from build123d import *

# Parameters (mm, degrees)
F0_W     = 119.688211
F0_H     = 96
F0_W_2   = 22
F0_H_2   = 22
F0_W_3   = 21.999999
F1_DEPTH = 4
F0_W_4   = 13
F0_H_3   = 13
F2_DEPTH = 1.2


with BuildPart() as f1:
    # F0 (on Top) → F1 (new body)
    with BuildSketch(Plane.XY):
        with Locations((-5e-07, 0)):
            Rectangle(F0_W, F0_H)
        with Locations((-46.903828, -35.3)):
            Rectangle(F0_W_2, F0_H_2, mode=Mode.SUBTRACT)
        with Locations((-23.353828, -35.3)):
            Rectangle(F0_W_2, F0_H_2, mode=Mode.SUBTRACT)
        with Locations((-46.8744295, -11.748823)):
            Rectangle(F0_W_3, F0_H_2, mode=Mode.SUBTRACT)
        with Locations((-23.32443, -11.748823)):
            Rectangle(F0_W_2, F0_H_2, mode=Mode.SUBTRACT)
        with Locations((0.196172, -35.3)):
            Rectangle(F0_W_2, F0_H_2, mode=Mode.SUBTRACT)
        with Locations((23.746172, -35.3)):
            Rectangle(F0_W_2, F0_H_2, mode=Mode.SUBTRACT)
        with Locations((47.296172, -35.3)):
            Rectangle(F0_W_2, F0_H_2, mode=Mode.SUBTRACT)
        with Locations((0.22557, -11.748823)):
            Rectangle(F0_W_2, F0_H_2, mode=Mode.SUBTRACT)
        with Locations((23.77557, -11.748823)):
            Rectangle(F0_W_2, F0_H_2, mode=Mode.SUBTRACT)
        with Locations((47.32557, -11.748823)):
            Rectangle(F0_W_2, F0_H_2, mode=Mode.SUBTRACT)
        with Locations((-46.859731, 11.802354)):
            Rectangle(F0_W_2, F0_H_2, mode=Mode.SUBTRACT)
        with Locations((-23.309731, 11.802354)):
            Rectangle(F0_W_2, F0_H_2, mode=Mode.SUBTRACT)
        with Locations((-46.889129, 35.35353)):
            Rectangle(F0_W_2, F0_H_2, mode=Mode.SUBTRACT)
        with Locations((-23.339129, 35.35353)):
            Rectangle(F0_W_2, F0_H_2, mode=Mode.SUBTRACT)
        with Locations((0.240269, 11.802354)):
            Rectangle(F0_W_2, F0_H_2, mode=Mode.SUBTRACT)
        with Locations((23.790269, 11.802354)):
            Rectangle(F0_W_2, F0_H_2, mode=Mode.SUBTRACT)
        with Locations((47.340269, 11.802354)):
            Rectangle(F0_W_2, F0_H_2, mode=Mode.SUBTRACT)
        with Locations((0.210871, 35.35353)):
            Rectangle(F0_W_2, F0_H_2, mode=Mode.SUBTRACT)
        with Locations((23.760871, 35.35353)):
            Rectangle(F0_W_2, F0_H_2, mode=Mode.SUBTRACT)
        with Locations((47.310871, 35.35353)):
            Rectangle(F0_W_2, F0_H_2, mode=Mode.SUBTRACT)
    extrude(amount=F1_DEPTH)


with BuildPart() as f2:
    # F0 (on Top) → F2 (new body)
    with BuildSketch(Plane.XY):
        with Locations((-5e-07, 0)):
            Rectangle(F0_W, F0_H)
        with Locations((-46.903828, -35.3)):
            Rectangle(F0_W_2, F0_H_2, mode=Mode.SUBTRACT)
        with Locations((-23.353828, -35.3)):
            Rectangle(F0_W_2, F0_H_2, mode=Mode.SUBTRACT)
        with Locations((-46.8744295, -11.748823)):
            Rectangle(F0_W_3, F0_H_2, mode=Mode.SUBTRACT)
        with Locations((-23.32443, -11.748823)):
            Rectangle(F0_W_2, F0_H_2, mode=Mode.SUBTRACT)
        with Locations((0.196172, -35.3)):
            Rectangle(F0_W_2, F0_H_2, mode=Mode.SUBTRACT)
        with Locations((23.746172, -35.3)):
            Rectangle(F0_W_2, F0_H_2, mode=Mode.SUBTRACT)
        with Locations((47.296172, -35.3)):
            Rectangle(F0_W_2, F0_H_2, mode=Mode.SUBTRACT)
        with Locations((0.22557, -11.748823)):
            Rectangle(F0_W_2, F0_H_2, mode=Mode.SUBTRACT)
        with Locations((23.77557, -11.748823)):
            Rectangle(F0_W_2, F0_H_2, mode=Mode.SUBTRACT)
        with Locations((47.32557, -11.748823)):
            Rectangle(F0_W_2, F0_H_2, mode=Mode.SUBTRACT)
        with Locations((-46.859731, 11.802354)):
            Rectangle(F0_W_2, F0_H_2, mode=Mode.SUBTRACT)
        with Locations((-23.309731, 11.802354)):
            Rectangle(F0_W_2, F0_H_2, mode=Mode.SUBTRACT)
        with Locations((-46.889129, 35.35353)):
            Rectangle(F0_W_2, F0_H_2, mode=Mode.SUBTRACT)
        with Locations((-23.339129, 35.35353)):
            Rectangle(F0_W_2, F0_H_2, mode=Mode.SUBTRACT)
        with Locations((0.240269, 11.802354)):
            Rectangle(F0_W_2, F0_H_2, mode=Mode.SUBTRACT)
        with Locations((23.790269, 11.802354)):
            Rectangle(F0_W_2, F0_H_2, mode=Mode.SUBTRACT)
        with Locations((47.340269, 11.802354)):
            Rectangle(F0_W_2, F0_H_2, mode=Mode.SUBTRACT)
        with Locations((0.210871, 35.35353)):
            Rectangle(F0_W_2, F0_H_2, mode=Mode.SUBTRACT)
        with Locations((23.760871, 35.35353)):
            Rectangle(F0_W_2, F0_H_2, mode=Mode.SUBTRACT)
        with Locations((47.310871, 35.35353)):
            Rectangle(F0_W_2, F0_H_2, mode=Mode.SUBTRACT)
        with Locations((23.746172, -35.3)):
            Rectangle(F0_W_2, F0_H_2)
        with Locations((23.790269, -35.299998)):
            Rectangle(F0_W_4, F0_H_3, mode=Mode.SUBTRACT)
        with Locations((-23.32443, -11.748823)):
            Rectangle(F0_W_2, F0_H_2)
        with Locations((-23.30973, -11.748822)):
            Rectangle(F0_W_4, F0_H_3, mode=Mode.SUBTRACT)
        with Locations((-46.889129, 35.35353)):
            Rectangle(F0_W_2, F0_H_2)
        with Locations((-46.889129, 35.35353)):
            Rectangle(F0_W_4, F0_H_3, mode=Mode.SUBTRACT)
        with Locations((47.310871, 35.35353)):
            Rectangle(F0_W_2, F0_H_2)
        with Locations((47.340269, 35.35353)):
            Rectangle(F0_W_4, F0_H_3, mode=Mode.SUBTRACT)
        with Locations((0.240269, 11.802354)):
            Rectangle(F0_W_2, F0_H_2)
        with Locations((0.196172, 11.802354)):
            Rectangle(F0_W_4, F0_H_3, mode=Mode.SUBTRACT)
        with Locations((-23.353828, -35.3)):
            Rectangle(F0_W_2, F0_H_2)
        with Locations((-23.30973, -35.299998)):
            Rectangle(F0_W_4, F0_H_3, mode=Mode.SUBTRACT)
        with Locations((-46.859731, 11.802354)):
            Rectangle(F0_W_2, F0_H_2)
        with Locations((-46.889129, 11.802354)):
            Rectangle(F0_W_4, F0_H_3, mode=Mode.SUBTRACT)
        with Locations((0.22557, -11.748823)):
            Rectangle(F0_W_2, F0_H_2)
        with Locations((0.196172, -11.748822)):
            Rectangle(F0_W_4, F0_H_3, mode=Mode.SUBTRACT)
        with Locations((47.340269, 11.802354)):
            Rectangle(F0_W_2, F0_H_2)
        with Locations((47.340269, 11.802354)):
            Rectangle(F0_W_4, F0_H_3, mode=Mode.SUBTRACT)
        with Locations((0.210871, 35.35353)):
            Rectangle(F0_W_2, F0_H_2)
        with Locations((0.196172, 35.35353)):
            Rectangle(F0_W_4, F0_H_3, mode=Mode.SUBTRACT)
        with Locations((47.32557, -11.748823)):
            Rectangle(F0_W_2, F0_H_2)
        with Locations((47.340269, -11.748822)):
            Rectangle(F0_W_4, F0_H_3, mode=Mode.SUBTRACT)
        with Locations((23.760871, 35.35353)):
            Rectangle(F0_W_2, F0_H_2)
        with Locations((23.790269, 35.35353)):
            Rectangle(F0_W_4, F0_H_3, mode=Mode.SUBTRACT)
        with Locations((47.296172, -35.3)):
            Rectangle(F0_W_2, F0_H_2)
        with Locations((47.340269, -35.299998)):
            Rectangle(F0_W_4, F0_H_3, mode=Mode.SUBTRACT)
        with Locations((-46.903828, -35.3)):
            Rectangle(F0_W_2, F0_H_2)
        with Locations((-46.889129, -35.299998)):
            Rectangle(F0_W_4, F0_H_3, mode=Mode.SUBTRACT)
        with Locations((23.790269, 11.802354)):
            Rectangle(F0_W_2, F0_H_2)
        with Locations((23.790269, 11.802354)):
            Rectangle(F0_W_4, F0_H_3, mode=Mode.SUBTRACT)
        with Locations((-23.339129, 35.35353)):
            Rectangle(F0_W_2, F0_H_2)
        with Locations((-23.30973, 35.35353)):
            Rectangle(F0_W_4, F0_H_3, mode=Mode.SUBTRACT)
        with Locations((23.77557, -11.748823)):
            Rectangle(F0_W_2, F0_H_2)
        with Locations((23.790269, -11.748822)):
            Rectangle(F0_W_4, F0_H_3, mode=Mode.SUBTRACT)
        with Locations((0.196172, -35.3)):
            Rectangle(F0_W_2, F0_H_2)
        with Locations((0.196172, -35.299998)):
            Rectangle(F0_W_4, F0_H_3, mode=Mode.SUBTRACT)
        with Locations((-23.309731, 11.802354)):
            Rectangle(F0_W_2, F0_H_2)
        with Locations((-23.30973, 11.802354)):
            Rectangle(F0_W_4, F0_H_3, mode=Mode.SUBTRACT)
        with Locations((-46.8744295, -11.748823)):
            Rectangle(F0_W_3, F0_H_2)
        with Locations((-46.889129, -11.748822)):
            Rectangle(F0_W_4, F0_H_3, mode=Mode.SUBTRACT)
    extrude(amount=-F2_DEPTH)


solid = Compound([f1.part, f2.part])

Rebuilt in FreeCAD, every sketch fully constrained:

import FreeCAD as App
import Part
import Sketcher

V = App.Vector
Q = App.Units.Quantity


def add_polygon(sketch, points):
    """Adds a closed chain of lines whose ends are joined by coincident constraints."""
    first, n = sketch.GeometryCount, len(points)
    for a, b in zip(points, points[1:] + points[:1]):
        sketch.addGeometry(Part.LineSegment(App.Vector(*a, 0), App.Vector(*b, 0)), False)
    for i in range(n):
        sketch.addConstraint(Sketcher.Constraint("Coincident", first + i, 2, first + (i + 1) % n, 1))

doc = App.newDocument("Part")
body = doc.addObject("PartDesign::Body", "Body")

# Sketch on XY plane
sketch1 = body.newObject("Sketcher::SketchObject", "Sketch")
sketch1.AttachmentSupport = (doc.getObject("XY_Plane"), [""])
sketch1.MapMode = "FlatFace"
add_polygon(sketch1, [(-59.844105, 48), (-59.844105, -48), (59.844105, -48), (59.844105, 48)])  # lines 0-3
add_polygon(sketch1, [(-35.903828, -46.3), (-57.903828, -46.3), (-57.903828, -24.3), (-35.903828, -24.3)])  # lines 4-7
add_polygon(sketch1, [(-12.353828, -46.3), (-34.353828, -46.3), (-34.353828, -24.3), (-12.353828, -24.3)])  # lines 8-11
add_polygon(sketch1, [(11.196172, -46.3), (-10.803828, -46.3), (-10.803828, -24.3), (11.196172, -24.3)])  # lines 12-15
add_polygon(sketch1, [(-35.87443, -22.748823), (-57.874429, -22.748823), (-57.874429, -0.748823), (-35.87443, -0.748823)])  # lines 16-19
add_polygon(sketch1, [(-12.32443, -22.748823), (-34.32443, -22.748823), (-34.32443, -0.748823), (-12.32443, -0.748823)])  # lines 20-23
add_polygon(sketch1, [(34.746172, -46.3), (12.746172, -46.3), (12.746172, -24.3), (34.746172, -24.3)])  # lines 24-27
add_polygon(sketch1, [(58.296172, -46.3), (36.296172, -46.3), (36.296172, -24.3), (58.296172, -24.3)])  # lines 28-31
add_polygon(sketch1, [(11.22557, -22.748823), (-10.77443, -22.748823), (-10.77443, -0.748823), (11.22557, -0.748823)])  # lines 32-35
add_polygon(sketch1, [(34.77557, -22.748823), (12.77557, -22.748823), (12.77557, -0.748823), (34.77557, -0.748823)])  # lines 36-39
add_polygon(sketch1, [(58.32557, -22.748823), (36.32557, -22.748823), (36.32557, -0.748823), (58.32557, -0.748823)])  # lines 40-43
add_polygon(sketch1, [(-35.859731, 0.802354), (-57.859731, 0.802354), (-57.859731, 22.802354), (-35.859731, 22.802354)])  # lines 44-47
add_polygon(sketch1, [(-12.309731, 0.802354), (-34.309731, 0.802354), (-34.309731, 22.802354), (-12.309731, 22.802354)])  # lines 48-51
add_polygon(sketch1, [(-35.889129, 24.35353), (-57.889129, 24.35353), (-57.889129, 46.35353), (-35.889129, 46.35353)])  # lines 52-55
add_polygon(sketch1, [(-12.339129, 24.35353), (-34.339129, 24.35353), (-34.339129, 46.35353), (-12.339129, 46.35353)])  # lines 56-59
add_polygon(sketch1, [(11.210871, 24.35353), (-10.789129, 24.35353), (-10.789129, 46.35353), (11.210871, 46.35353)])  # lines 60-63
add_polygon(sketch1, [(11.240269, 0.802354), (-10.759731, 0.802354), (-10.759731, 22.802354), (11.240269, 22.802354)])  # lines 64-67
add_polygon(sketch1, [(34.790269, 0.802354), (12.790269, 0.802354), (12.790269, 22.802354), (34.790269, 22.802354)])  # lines 68-71
add_polygon(sketch1, [(58.340269, 0.802354), (36.340269, 0.802354), (36.340269, 22.802354), (58.340269, 22.802354)])  # lines 72-75
add_polygon(sketch1, [(34.760871, 24.35353), (12.760871, 24.35353), (12.760871, 46.35353), (34.760871, 46.35353)])  # lines 76-79
add_polygon(sketch1, [(58.310871, 24.35353), (36.310871, 24.35353), (36.310871, 46.35353), (58.310871, 46.35353)])  # lines 80-83
sketch1.addConstraint([
    Sketcher.Constraint("Vertical", 0),
    Sketcher.Constraint("Horizontal", 1),
    Sketcher.Constraint("Vertical", 2),
    Sketcher.Constraint("Horizontal", 3),
    Sketcher.Constraint("Horizontal", 4),
    Sketcher.Constraint("Vertical", 5),
    Sketcher.Constraint("Horizontal", 6),
    Sketcher.Constraint("Vertical", 7),
    Sketcher.Constraint("Horizontal", 8),
    Sketcher.Constraint("Vertical", 9),
    Sketcher.Constraint("Horizontal", 10),
    Sketcher.Constraint("Vertical", 11),
    Sketcher.Constraint("Horizontal", 12),
    Sketcher.Constraint("Vertical", 13),
    Sketcher.Constraint("Horizontal", 14),
    Sketcher.Constraint("Vertical", 15),
    Sketcher.Constraint("Horizontal", 16),
    Sketcher.Constraint("Vertical", 17),
    Sketcher.Constraint("Horizontal", 18),
    Sketcher.Constraint("Vertical", 19),
    Sketcher.Constraint("Horizontal", 20),
    Sketcher.Constraint("Vertical", 21),
    Sketcher.Constraint("Horizontal", 22),
    Sketcher.Constraint("Vertical", 23),
    Sketcher.Constraint("Horizontal", 24),
    Sketcher.Constraint("Vertical", 25),
    Sketcher.Constraint("Horizontal", 26),
    Sketcher.Constraint("Vertical", 27),
    Sketcher.Constraint("Horizontal", 28),
    Sketcher.Constraint("Vertical", 29),
    Sketcher.Constraint("Horizontal", 30),
    Sketcher.Constraint("Vertical", 31),
    Sketcher.Constraint("Horizontal", 32),
    Sketcher.Constraint("Vertical", 33),
    Sketcher.Constraint("Horizontal", 34),
    Sketcher.Constraint("Vertical", 35),
    Sketcher.Constraint("Horizontal", 36),
    Sketcher.Constraint("Vertical", 37),
    Sketcher.Constraint("Horizontal", 38),
    Sketcher.Constraint("Vertical", 39),
    Sketcher.Constraint("Horizontal", 40),
    Sketcher.Constraint("Vertical", 41),
    Sketcher.Constraint("Horizontal", 42),
    Sketcher.Constraint("Vertical", 43),
    Sketcher.Constraint("Horizontal", 44),
    Sketcher.Constraint("Vertical", 45),
    Sketcher.Constraint("Horizontal", 46),
    Sketcher.Constraint("Vertical", 47),
    Sketcher.Constraint("Horizontal", 48),
    Sketcher.Constraint("Vertical", 49),
    Sketcher.Constraint("Horizontal", 50),
    Sketcher.Constraint("Vertical", 51),
    Sketcher.Constraint("Horizontal", 52),
    Sketcher.Constraint("Vertical", 53),
    Sketcher.Constraint("Horizontal", 54),
    Sketcher.Constraint("Vertical", 55),
    Sketcher.Constraint("Horizontal", 56),
    Sketcher.Constraint("Vertical", 57),
    Sketcher.Constraint("Horizontal", 58),
    Sketcher.Constraint("Vertical", 59),
    Sketcher.Constraint("Horizontal", 60),
    Sketcher.Constraint("Vertical", 61),
    Sketcher.Constraint("Horizontal", 62),
    Sketcher.Constraint("Vertical", 63),
    Sketcher.Constraint("Horizontal", 64),
    Sketcher.Constraint("Vertical", 65),
    Sketcher.Constraint("Horizontal", 66),
    Sketcher.Constraint("Vertical", 67),
    Sketcher.Constraint("Horizontal", 68),
    Sketcher.Constraint("Vertical", 69),
    Sketcher.Constraint("Horizontal", 70),
    Sketcher.Constraint("Vertical", 71),
    Sketcher.Constraint("Horizontal", 72),
    Sketcher.Constraint("Vertical", 73),
    Sketcher.Constraint("Horizontal", 74),
    Sketcher.Constraint("Vertical", 75),
    Sketcher.Constraint("Horizontal", 76),
    Sketcher.Constraint("Vertical", 77),
    Sketcher.Constraint("Horizontal", 78),
    Sketcher.Constraint("Vertical", 79),
    Sketcher.Constraint("Horizontal", 80),
    Sketcher.Constraint("Vertical", 81),
    Sketcher.Constraint("Horizontal", 82),
    Sketcher.Constraint("Vertical", 83),
    Sketcher.Constraint("Symmetric", 0, 2, 2, 2, -1, 1),
    Sketcher.Constraint("Horizontal", 7, 2, 8, 2),
    Sketcher.Constraint("Horizontal", 6, 2, 9, 2),
    Sketcher.Constraint("Horizontal", 11, 2, 12, 2),
    Sketcher.Constraint("Horizontal", 10, 2, 13, 2),
    Sketcher.Constraint("Horizontal", 19, 2, 20, 2),
    Sketcher.Constraint("Horizontal", 18, 2, 21, 2),
    Sketcher.Constraint("Horizontal", 15, 2, 24, 2),
    Sketcher.Constraint("Horizontal", 14, 2, 25, 2),
    Sketcher.Constraint("Horizontal", 27, 2, 28, 2),
    Sketcher.Constraint("Horizontal", 26, 2, 29, 2),
    Sketcher.Constraint("Horizontal", 23, 2, 32, 2),
    Sketcher.Constraint("Horizontal", 22, 2, 33, 2),
    Sketcher.Constraint("Horizontal", 35, 2, 36, 2),
    Sketcher.Constraint("Horizontal", 34, 2, 37, 2),
    Sketcher.Constraint("Horizontal", 39, 2, 40, 2),
    Sketcher.Constraint("Horizontal", 38, 2, 41, 2),
    Sketcher.Constraint("Horizontal", 47, 2, 48, 2),
    Sketcher.Constraint("Horizontal", 46, 2, 49, 2),
    Sketcher.Constraint("Horizontal", 55, 2, 56, 2),
    Sketcher.Constraint("Horizontal", 54, 2, 57, 2),
    Sketcher.Constraint("Horizontal", 59, 2, 60, 2),
    Sketcher.Constraint("Horizontal", 58, 2, 61, 2),
    Sketcher.Constraint("Horizontal", 51, 2, 64, 2),
    Sketcher.Constraint("Horizontal", 50, 2, 65, 2),
    Sketcher.Constraint("Horizontal", 67, 2, 68, 2),
    Sketcher.Constraint("Horizontal", 66, 2, 69, 2),
    Sketcher.Constraint("Horizontal", 71, 2, 72, 2),
    Sketcher.Constraint("Horizontal", 70, 2, 73, 2),
    Sketcher.Constraint("Horizontal", 63, 2, 76, 2),
    Sketcher.Constraint("Horizontal", 62, 2, 77, 2),
    Sketcher.Constraint("Horizontal", 79, 2, 80, 2),
    Sketcher.Constraint("Horizontal", 78, 2, 81, 2),
    Sketcher.Constraint("Equal", 6, 8),
    Sketcher.Constraint("Equal", 10, 12),
    Sketcher.Constraint("Equal", 14, 16),
    Sketcher.Constraint("Equal", 18, 20),
    Sketcher.Constraint("Equal", 22, 24),
    Sketcher.Constraint("Equal", 26, 28),
    Sketcher.Constraint("Equal", 30, 32),
    Sketcher.Constraint("Equal", 34, 36),
    Sketcher.Constraint("Equal", 38, 40),
    Sketcher.Constraint("Equal", 42, 44),
    Sketcher.Constraint("Equal", 46, 48),
    Sketcher.Constraint("Equal", 50, 52),
    Sketcher.Constraint("Equal", 54, 56),
    Sketcher.Constraint("Equal", 58, 60),
    Sketcher.Constraint("Equal", 62, 64),
    Sketcher.Constraint("Equal", 66, 68),
    Sketcher.Constraint("Equal", 70, 72),
    Sketcher.Constraint("Equal", 74, 76),
    Sketcher.Constraint("Equal", 78, 80),
    Sketcher.Constraint("Equal", 82, 5),
    Sketcher.Constraint("Equal", 15, 17),
    Sketcher.Constraint("Equal", 43, 45),
    Sketcher.Constraint("Equal", 51, 53),
    Sketcher.Constraint("DistanceX", 4, 2, 4, 1, Q("22 mm")),
    Sketcher.Constraint("DistanceY", 0, 2, 0, 1, Q("96 mm")),
    Sketcher.Constraint("DistanceY", 4, 2, -1, 1, Q("46.3 mm")),
    Sketcher.Constraint("DistanceX", 1, 1, 1, 2, Q("119.688211 mm")),
    Sketcher.Constraint("DistanceX", 16, 2, -1, 1, Q("57.874429 mm")),
    Sketcher.Constraint("DistanceX", 20, 2, -1, 1, Q("34.32443 mm")),
    Sketcher.Constraint("DistanceX", 32, 2, -1, 1, Q("10.77443 mm")),
    Sketcher.Constraint("DistanceX", -1, 1, 36, 2, Q("12.77557 mm")),
    Sketcher.Constraint("DistanceX", -1, 1, 40, 2, Q("36.32557 mm")),
    Sketcher.Constraint("DistanceX", 44, 2, -1, 1, Q("57.859731 mm")),
    Sketcher.Constraint("DistanceX", 48, 2, -1, 1, Q("34.309731 mm")),
    Sketcher.Constraint("DistanceX", 52, 2, -1, 1, Q("57.889129 mm")),
    Sketcher.Constraint("DistanceY", -1, 1, 52, 2, Q("24.35353 mm")),
    Sketcher.Constraint("DistanceX", 56, 2, -1, 1, Q("34.339129 mm")),
    Sketcher.Constraint("DistanceX", 60, 2, -1, 1, Q("10.789129 mm")),
    Sketcher.Constraint("DistanceX", 64, 2, -1, 1, Q("10.759731 mm")),
    Sketcher.Constraint("DistanceX", -1, 1, 68, 2, Q("12.790269 mm")),
    Sketcher.Constraint("DistanceX", -1, 1, 72, 2, Q("36.340269 mm")),
    Sketcher.Constraint("DistanceX", -1, 1, 76, 2, Q("12.760871 mm")),
    Sketcher.Constraint("DistanceX", -1, 1, 80, 2, Q("36.310871 mm")),
    Sketcher.Constraint("DistanceX", 4, 2, -1, 1, Q("57.903828 mm")),
    Sketcher.Constraint("DistanceX", 8, 2, -1, 1, Q("34.353828 mm")),
    Sketcher.Constraint("DistanceX", 12, 2, -1, 1, Q("10.803828 mm")),
    Sketcher.Constraint("DistanceY", 16, 2, -1, 1, Q("22.748823 mm")),
    Sketcher.Constraint("DistanceX", -1, 1, 24, 2, Q("12.746172 mm")),
    Sketcher.Constraint("DistanceX", -1, 1, 28, 2, Q("36.296172 mm")),
    Sketcher.Constraint("DistanceY", -1, 1, 44, 2, Q("0.802354 mm")),
])
pad1 = body.newObject("PartDesign::Pad", "Pad")
pad1.Profile = sketch1
pad1.Length = 4
body2 = doc.addObject("PartDesign::Body", "Body001")

# Sketch on XY plane
sketch2 = body2.newObject("Sketcher::SketchObject", "Sketch001")
sketch2.AttachmentSupport = (doc.getObject("XY_Plane001"), [""])
sketch2.MapMode = "FlatFace"
add_polygon(sketch2, [(-59.844105, 48), (-59.844105, -48), (59.844105, -48), (59.844105, 48)])  # lines 0-3
add_polygon(sketch2, [(-40.389129, -41.799998), (-53.389129, -41.799998), (-53.389129, -28.799998), (-40.389129, -28.799998)])  # lines 4-7
add_polygon(sketch2, [(-16.80973, -41.799998), (-29.80973, -41.799998), (-29.80973, -28.799998), (-16.80973, -28.799998)])  # lines 8-11
add_polygon(sketch2, [(6.696172, -41.799998), (-6.303828, -41.799998), (-6.303828, -28.799998), (6.696172, -28.799998)])  # lines 12-15
add_polygon(sketch2, [(-40.389129, -18.248822), (-53.389129, -18.248822), (-53.389129, -5.248822), (-40.389129, -5.248822)])  # lines 16-19
add_polygon(sketch2, [(-16.80973, -18.248822), (-29.80973, -18.248822), (-29.80973, -5.248822), (-16.80973, -5.248822)])  # lines 20-23
add_polygon(sketch2, [(6.696172, -18.248822), (-6.303828, -18.248822), (-6.303828, -5.248822), (6.696172, -5.248822)])  # lines 24-27
add_polygon(sketch2, [(30.290269, -41.799998), (17.290269, -41.799998), (17.290269, -28.799998), (30.290269, -28.799998)])  # lines 28-31
add_polygon(sketch2, [(53.840269, -41.799998), (40.840269, -41.799998), (40.840269, -28.799998), (53.840269, -28.799998)])  # lines 32-35
add_polygon(sketch2, [(30.290269, -18.248822), (17.290269, -18.248822), (17.290269, -5.248822), (30.290269, -5.248822)])  # lines 36-39
add_polygon(sketch2, [(53.840269, -18.248822), (40.840269, -18.248822), (40.840269, -5.248822), (53.840269, -5.248822)])  # lines 40-43
add_polygon(sketch2, [(-40.389129, 5.302354), (-53.389129, 5.302354), (-53.389129, 18.302354), (-40.389129, 18.302354)])  # lines 44-47
add_polygon(sketch2, [(-16.80973, 5.302354), (-29.80973, 5.302354), (-29.80973, 18.302354), (-16.80973, 18.302354)])  # lines 48-51
add_polygon(sketch2, [(6.696172, 5.302354), (-6.303828, 5.302354), (-6.303828, 18.302354), (6.696172, 18.302354)])  # lines 52-55
add_polygon(sketch2, [(-40.389129, 28.85353), (-53.389129, 28.85353), (-53.389129, 41.85353), (-40.389129, 41.85353)])  # lines 56-59
add_polygon(sketch2, [(-16.80973, 28.85353), (-29.80973, 28.85353), (-29.80973, 41.85353), (-16.80973, 41.85353)])  # lines 60-63
add_polygon(sketch2, [(6.696172, 28.85353), (-6.303828, 28.85353), (-6.303828, 41.85353), (6.696172, 41.85353)])  # lines 64-67
add_polygon(sketch2, [(30.290269, 5.302354), (17.290269, 5.302354), (17.290269, 18.302354), (30.290269, 18.302354)])  # lines 68-71
add_polygon(sketch2, [(53.840269, 5.302354), (40.840269, 5.302354), (40.840269, 18.302354), (53.840269, 18.302354)])  # lines 72-75
add_polygon(sketch2, [(30.290269, 28.85353), (17.290269, 28.85353), (17.290269, 41.85353), (30.290269, 41.85353)])  # lines 76-79
add_polygon(sketch2, [(53.840269, 28.85353), (40.840269, 28.85353), (40.840269, 41.85353), (53.840269, 41.85353)])  # lines 80-83
sketch2.addConstraint([
    Sketcher.Constraint("Vertical", 0),
    Sketcher.Constraint("Horizontal", 1),
    Sketcher.Constraint("Vertical", 2),
    Sketcher.Constraint("Horizontal", 3),
    Sketcher.Constraint("Horizontal", 4),
    Sketcher.Constraint("Vertical", 5),
    Sketcher.Constraint("Horizontal", 6),
    Sketcher.Constraint("Vertical", 7),
    Sketcher.Constraint("Horizontal", 8),
    Sketcher.Constraint("Vertical", 9),
    Sketcher.Constraint("Horizontal", 10),
    Sketcher.Constraint("Vertical", 11),
    Sketcher.Constraint("Horizontal", 12),
    Sketcher.Constraint("Vertical", 13),
    Sketcher.Constraint("Horizontal", 14),
    Sketcher.Constraint("Vertical", 15),
    Sketcher.Constraint("Horizontal", 16),
    Sketcher.Constraint("Vertical", 17),
    Sketcher.Constraint("Horizontal", 18),
    Sketcher.Constraint("Vertical", 19),
    Sketcher.Constraint("Horizontal", 20),
    Sketcher.Constraint("Vertical", 21),
    Sketcher.Constraint("Horizontal", 22),
    Sketcher.Constraint("Vertical", 23),
    Sketcher.Constraint("Horizontal", 24),
    Sketcher.Constraint("Vertical", 25),
    Sketcher.Constraint("Horizontal", 26),
    Sketcher.Constraint("Vertical", 27),
    Sketcher.Constraint("Horizontal", 28),
    Sketcher.Constraint("Vertical", 29),
    Sketcher.Constraint("Horizontal", 30),
    Sketcher.Constraint("Vertical", 31),
    Sketcher.Constraint("Horizontal", 32),
    Sketcher.Constraint("Vertical", 33),
    Sketcher.Constraint("Horizontal", 34),
    Sketcher.Constraint("Vertical", 35),
    Sketcher.Constraint("Horizontal", 36),
    Sketcher.Constraint("Vertical", 37),
    Sketcher.Constraint("Horizontal", 38),
    Sketcher.Constraint("Vertical", 39),
    Sketcher.Constraint("Horizontal", 40),
    Sketcher.Constraint("Vertical", 41),
    Sketcher.Constraint("Horizontal", 42),
    Sketcher.Constraint("Vertical", 43),
    Sketcher.Constraint("Horizontal", 44),
    Sketcher.Constraint("Vertical", 45),
    Sketcher.Constraint("Horizontal", 46),
    Sketcher.Constraint("Vertical", 47),
    Sketcher.Constraint("Horizontal", 48),
    Sketcher.Constraint("Vertical", 49),
    Sketcher.Constraint("Horizontal", 50),
    Sketcher.Constraint("Vertical", 51),
    Sketcher.Constraint("Horizontal", 52),
    Sketcher.Constraint("Vertical", 53),
    Sketcher.Constraint("Horizontal", 54),
    Sketcher.Constraint("Vertical", 55),
    Sketcher.Constraint("Horizontal", 56),
    Sketcher.Constraint("Vertical", 57),
    Sketcher.Constraint("Horizontal", 58),
    Sketcher.Constraint("Vertical", 59),
    Sketcher.Constraint("Horizontal", 60),
    Sketcher.Constraint("Vertical", 61),
    Sketcher.Constraint("Horizontal", 62),
    Sketcher.Constraint("Vertical", 63),
    Sketcher.Constraint("Horizontal", 64),
    Sketcher.Constraint("Vertical", 65),
    Sketcher.Constraint("Horizontal", 66),
    Sketcher.Constraint("Vertical", 67),
    Sketcher.Constraint("Horizontal", 68),
    Sketcher.Constraint("Vertical", 69),
    Sketcher.Constraint("Horizontal", 70),
    Sketcher.Constraint("Vertical", 71),
    Sketcher.Constraint("Horizontal", 72),
    Sketcher.Constraint("Vertical", 73),
    Sketcher.Constraint("Horizontal", 74),
    Sketcher.Constraint("Vertical", 75),
    Sketcher.Constraint("Horizontal", 76),
    Sketcher.Constraint("Vertical", 77),
    Sketcher.Constraint("Horizontal", 78),
    Sketcher.Constraint("Vertical", 79),
    Sketcher.Constraint("Horizontal", 80),
    Sketcher.Constraint("Vertical", 81),
    Sketcher.Constraint("Horizontal", 82),
    Sketcher.Constraint("Vertical", 83),
    Sketcher.Constraint("Symmetric", 0, 2, 2, 2, -1, 1),
    Sketcher.Constraint("Horizontal", 7, 2, 8, 2),
    Sketcher.Constraint("Horizontal", 6, 2, 9, 2),
    Sketcher.Constraint("Horizontal", 11, 2, 12, 2),
    Sketcher.Constraint("Horizontal", 10, 2, 13, 2),
    Sketcher.Constraint("Horizontal", 19, 2, 20, 2),
    Sketcher.Constraint("Horizontal", 18, 2, 21, 2),
    Sketcher.Constraint("Horizontal", 23, 2, 24, 2),
    Sketcher.Constraint("Horizontal", 22, 2, 25, 2),
    Sketcher.Constraint("Horizontal", 15, 2, 28, 2),
    Sketcher.Constraint("Horizontal", 14, 2, 29, 2),
    Sketcher.Constraint("Horizontal", 31, 2, 32, 2),
    Sketcher.Constraint("Horizontal", 30, 2, 33, 2),
    Sketcher.Constraint("Horizontal", 27, 2, 36, 2),
    Sketcher.Constraint("Horizontal", 26, 2, 37, 2),
    Sketcher.Constraint("Horizontal", 39, 2, 40, 2),
    Sketcher.Constraint("Horizontal", 38, 2, 41, 2),
    Sketcher.Constraint("Horizontal", 47, 2, 48, 2),
    Sketcher.Constraint("Horizontal", 46, 2, 49, 2),
    Sketcher.Constraint("Horizontal", 51, 2, 52, 2),
    Sketcher.Constraint("Horizontal", 50, 2, 53, 2),
    Sketcher.Constraint("Horizontal", 59, 2, 60, 2),
    Sketcher.Constraint("Horizontal", 58, 2, 61, 2),
    Sketcher.Constraint("Horizontal", 63, 2, 64, 2),
    Sketcher.Constraint("Horizontal", 62, 2, 65, 2),
    Sketcher.Constraint("Horizontal", 55, 2, 68, 2),
    Sketcher.Constraint("Horizontal", 54, 2, 69, 2),
    Sketcher.Constraint("Horizontal", 71, 2, 72, 2),
    Sketcher.Constraint("Horizontal", 70, 2, 73, 2),
    Sketcher.Constraint("Horizontal", 67, 2, 76, 2),
    Sketcher.Constraint("Horizontal", 66, 2, 77, 2),
    Sketcher.Constraint("Horizontal", 79, 2, 80, 2),
    Sketcher.Constraint("Horizontal", 78, 2, 81, 2),
    Sketcher.Constraint("Vertical", 5, 2, 16, 2),
    Sketcher.Constraint("Vertical", 7, 2, 18, 2),
    Sketcher.Constraint("Vertical", 9, 2, 20, 2),
    Sketcher.Constraint("Vertical", 11, 2, 22, 2),
    Sketcher.Constraint("Vertical", 13, 2, 24, 2),
    Sketcher.Constraint("Vertical", 15, 2, 26, 2),
    Sketcher.Constraint("Vertical", 29, 2, 36, 2),
    Sketcher.Constraint("Vertical", 31, 2, 38, 2),
    Sketcher.Constraint("Vertical", 33, 2, 40, 2),
    Sketcher.Constraint("Vertical", 35, 2, 42, 2),
    Sketcher.Constraint("Vertical", 17, 2, 44, 2),
    Sketcher.Constraint("Vertical", 19, 2, 46, 2),
    Sketcher.Constraint("Vertical", 21, 2, 48, 2),
    Sketcher.Constraint("Vertical", 23, 2, 50, 2),
    Sketcher.Constraint("Vertical", 25, 2, 52, 2),
    Sketcher.Constraint("Vertical", 27, 2, 54, 2),
    Sketcher.Constraint("Vertical", 45, 2, 56, 2),
    Sketcher.Constraint("Vertical", 47, 2, 58, 2),
    Sketcher.Constraint("Vertical", 49, 2, 60, 2),
    Sketcher.Constraint("Vertical", 51, 2, 62, 2),
    Sketcher.Constraint("Vertical", 53, 2, 64, 2),
    Sketcher.Constraint("Vertical", 55, 2, 66, 2),
    Sketcher.Constraint("Vertical", 37, 2, 68, 2),
    Sketcher.Constraint("Vertical", 39, 2, 70, 2),
    Sketcher.Constraint("Vertical", 41, 2, 72, 2),
    Sketcher.Constraint("Vertical", 43, 2, 74, 2),
    Sketcher.Constraint("Vertical", 69, 2, 76, 2),
    Sketcher.Constraint("Vertical", 71, 2, 78, 2),
    Sketcher.Constraint("Vertical", 73, 2, 80, 2),
    Sketcher.Constraint("Vertical", 75, 2, 82, 2),
    Sketcher.Constraint("Equal", 6, 8),
    Sketcher.Constraint("Equal", 10, 12),
    Sketcher.Constraint("Equal", 26, 28),
    Sketcher.Constraint("Equal", 30, 32),
    Sketcher.Constraint("Equal", 82, 5),
    Sketcher.Constraint("Equal", 15, 17),
    Sketcher.Constraint("Equal", 43, 45),
    Sketcher.Constraint("Equal", 55, 57),
    Sketcher.Constraint("DistanceX", 4, 2, 4, 1, Q("13 mm")),
    Sketcher.Constraint("DistanceY", 0, 2, 0, 1, Q("96 mm")),
    Sketcher.Constraint("DistanceY", 4, 2, -1, 1, Q("41.799998 mm")),
    Sketcher.Constraint("DistanceX", 1, 1, 1, 2, Q("119.688211 mm")),
    Sketcher.Constraint("DistanceX", 4, 2, -1, 1, Q("53.389129 mm")),
    Sketcher.Constraint("DistanceX", 8, 2, -1, 1, Q("29.80973 mm")),
    Sketcher.Constraint("DistanceX", 12, 2, -1, 1, Q("6.303828 mm")),
    Sketcher.Constraint("DistanceY", 17, 2, -1, 1, Q("5.248822 mm")),
    Sketcher.Constraint("DistanceX", -1, 1, 28, 2, Q("17.290269 mm")),
    Sketcher.Constraint("DistanceX", -1, 1, 32, 2, Q("40.840269 mm")),
    Sketcher.Constraint("DistanceY", -1, 1, 56, 2, Q("28.85353 mm")),
    Sketcher.Constraint("DistanceY", -1, 1, 44, 2, Q("5.302354 mm")),
])
pad2 = body2.newObject("PartDesign::Pad", "Pad001")
pad2.Profile = sketch2
pad2.Length = 1.2
pad2.Reversed = True

doc.recompute()
